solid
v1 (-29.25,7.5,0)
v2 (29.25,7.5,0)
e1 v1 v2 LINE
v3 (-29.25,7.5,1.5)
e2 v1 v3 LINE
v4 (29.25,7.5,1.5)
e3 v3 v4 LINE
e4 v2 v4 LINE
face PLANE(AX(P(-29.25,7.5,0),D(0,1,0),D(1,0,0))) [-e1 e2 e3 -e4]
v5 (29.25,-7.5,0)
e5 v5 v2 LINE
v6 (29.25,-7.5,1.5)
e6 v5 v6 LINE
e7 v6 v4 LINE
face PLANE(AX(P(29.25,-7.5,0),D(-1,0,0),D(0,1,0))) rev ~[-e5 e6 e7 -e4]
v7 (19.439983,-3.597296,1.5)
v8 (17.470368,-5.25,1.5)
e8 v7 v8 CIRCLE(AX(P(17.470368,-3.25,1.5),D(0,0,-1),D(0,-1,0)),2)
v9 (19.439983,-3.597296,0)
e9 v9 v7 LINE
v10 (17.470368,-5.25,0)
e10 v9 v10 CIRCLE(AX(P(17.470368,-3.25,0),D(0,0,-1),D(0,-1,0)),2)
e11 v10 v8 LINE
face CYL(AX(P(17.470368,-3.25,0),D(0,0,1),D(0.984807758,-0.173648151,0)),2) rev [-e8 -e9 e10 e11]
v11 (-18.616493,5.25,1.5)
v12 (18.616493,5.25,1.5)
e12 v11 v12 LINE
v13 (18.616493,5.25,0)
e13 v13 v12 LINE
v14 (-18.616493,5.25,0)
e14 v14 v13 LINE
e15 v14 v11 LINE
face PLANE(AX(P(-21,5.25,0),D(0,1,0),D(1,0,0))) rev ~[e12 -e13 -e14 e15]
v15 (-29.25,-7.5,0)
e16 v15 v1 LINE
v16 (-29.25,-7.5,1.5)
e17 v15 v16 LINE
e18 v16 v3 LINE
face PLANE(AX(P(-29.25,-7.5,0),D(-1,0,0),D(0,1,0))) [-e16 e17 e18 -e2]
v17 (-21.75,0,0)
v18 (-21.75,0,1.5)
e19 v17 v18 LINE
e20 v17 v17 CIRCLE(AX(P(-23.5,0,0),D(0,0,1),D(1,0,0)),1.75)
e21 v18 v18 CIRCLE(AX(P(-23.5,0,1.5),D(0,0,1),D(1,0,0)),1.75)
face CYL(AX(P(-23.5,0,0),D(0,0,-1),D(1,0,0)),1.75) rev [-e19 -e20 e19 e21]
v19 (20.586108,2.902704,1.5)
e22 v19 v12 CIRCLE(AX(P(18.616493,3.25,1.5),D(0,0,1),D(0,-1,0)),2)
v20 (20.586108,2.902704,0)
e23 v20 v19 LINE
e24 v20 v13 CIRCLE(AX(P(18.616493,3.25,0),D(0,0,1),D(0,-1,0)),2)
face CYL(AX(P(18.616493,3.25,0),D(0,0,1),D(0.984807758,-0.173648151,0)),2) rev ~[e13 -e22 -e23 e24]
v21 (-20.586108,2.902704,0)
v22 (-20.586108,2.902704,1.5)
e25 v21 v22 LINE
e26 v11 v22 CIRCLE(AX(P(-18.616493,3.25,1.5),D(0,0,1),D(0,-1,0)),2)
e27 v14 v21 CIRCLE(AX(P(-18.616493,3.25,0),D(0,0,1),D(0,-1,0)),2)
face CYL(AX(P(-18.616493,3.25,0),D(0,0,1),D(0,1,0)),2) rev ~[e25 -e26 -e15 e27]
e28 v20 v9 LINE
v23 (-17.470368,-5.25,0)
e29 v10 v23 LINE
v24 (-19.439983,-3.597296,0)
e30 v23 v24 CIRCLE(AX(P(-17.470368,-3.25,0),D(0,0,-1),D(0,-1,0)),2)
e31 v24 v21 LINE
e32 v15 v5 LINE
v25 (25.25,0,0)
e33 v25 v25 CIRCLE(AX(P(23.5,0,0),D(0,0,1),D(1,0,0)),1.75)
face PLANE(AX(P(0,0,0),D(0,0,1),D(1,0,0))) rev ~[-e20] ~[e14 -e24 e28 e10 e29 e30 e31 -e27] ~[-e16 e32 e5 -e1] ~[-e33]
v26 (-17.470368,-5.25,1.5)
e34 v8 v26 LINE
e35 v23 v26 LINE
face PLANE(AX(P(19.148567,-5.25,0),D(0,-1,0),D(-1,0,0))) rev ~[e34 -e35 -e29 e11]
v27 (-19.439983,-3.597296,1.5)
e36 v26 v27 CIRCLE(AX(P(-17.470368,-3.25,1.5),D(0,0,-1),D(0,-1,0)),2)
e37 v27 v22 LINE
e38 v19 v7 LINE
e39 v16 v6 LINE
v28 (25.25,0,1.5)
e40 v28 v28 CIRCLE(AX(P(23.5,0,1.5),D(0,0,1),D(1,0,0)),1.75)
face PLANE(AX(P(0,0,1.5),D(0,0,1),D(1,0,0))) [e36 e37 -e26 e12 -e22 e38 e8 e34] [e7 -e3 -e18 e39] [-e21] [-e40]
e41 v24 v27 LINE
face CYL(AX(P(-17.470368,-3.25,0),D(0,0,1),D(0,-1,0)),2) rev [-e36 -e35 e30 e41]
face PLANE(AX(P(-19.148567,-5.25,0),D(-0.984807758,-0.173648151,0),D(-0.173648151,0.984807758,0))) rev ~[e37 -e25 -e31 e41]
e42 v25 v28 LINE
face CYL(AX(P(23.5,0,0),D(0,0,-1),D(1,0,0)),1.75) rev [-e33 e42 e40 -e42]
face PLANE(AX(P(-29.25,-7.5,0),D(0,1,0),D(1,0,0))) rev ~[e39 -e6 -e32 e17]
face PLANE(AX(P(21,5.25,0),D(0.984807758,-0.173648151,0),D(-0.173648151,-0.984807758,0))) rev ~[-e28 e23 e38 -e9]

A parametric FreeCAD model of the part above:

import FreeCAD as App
import Part
import Sketcher
from FreeCAD import Vector
Q = App.Units.Quantity


def edges_at(feature, points):
    """Names of the edges that pass closest to the given points."""
    edges = feature.Shape.Edges
    near = lambda p: min(range(len(edges)), key=lambda i: edges[i].distToShape(Part.Vertex(*p))[0])
    return sorted({f"Edge{near(p) + 1}" for p in points})


def add_polygon(sketch, points):
    """Adds a closed chain of lines whose ends are joined by coincident constraints."""
    first, n = sketch.GeometryCount, len(points)
    for a, b in zip(points, points[1:] + points[:1]):
        sketch.addGeometry(Part.LineSegment(App.Vector(*a, 0), App.Vector(*b, 0)), False)
    for i in range(n):
        sketch.addConstraint(Sketcher.Constraint("Coincident", first + i, 2, first + (i + 1) % n, 1))

doc = App.newDocument("Part")
body = doc.addObject("PartDesign::Body", "Body")

# Sketch on XY plane
sketch1 = body.newObject("Sketcher::SketchObject", "Sketch")
sketch1.AttachmentSupport = (doc.getObject("XY_Plane"), [""])
sketch1.MapMode = "FlatFace"
add_polygon(sketch1, [(-29.25, 7.5), (-29.25, -7.5), (29.25, -7.5), (29.25, 7.5)])  # lines 0-3
sketch1.addGeometry(Part.Circle(Vector(-23.5, 0, 0), Vector(0, 0, 1), 1.75), False)  # 4
add_polygon(sketch1, [(21, 5.25), (19.148567, -5.25), (-19.148567, -5.25), (-21, 5.25)])  # lines 5-8
sketch1.addGeometry(Part.Circle(Vector(23.5, 0, 0), Vector(0, 0, 1), 1.75), False)  # 9
sketch1.addConstraint(Sketcher.Constraint("Vertical", 0))
sketch1.addConstraint(Sketcher.Constraint("Horizontal", 1))
sketch1.addConstraint(Sketcher.Constraint("Vertical", 2))
sketch1.addConstraint(Sketcher.Constraint("Horizontal", 3))
sketch1.addConstraint(Sketcher.Constraint("Horizontal", 6))
sketch1.addConstraint(Sketcher.Constraint("Horizontal", 8))
sketch1.addConstraint(Sketcher.Constraint("Equal", 4, 9))
sketch1.addConstraint(Sketcher.Constraint("Symmetric", 4, 3, 9, 3, -1, 1))
sketch1.addConstraint(Sketcher.Constraint("Symmetric", 0, 2, 2, 2, -1, 1))
sketch1.addConstraint(Sketcher.Constraint("PointOnObject", 4, 3, -1))
sketch1.addConstraint(Sketcher.Constraint("Equal", 5, 7))
sketch1.addConstraint(Sketcher.Constraint("Diameter", 4, 3.5))
sketch1.addConstraint(Sketcher.Constraint("DistanceX", 8, 1, 8, 2, 42.0))
sketch1.addConstraint(Sketcher.Constraint("DistanceY", 0, 2, 0, 1, 15.0))
sketch1.addConstraint(Sketcher.Constraint("Angle", 5, Q("-99.999998 deg")))
sketch1.addConstraint(Sketcher.Constraint("DistanceX", 1, 1, 1, 2, 58.5))
sketch1.addConstraint(Sketcher.Constraint("DistanceX", 7, 2, -1, 1, 21.0))
sketch1.addConstraint(Sketcher.Constraint("DistanceX", 4, 3, 9, 3, 47.0))
sketch1.addConstraint(Sketcher.Constraint("DistanceY", 6, 2, 7, 2, 10.5))
sketch1.addConstraint(Sketcher.Constraint("DistanceY", 5, 2, -1, 1, 5.25))
pad1 = body.newObject("PartDesign::Pad", "Pad")
pad1.Profile = sketch1
pad1.Length = 1.5
doc.recompute()

fillet = body.newObject("PartDesign::Fillet", "Fillet")
fillet.Base = (pad1, edges_at(pad1, [
    (-21, 5.25, 0.75),
    (-19.149, -5.25, 0.75),
    (19.149, -5.25, 0.75),
    (21, 5.25, 0.75),
]))
fillet.Radius = 2

doc.recompute()
